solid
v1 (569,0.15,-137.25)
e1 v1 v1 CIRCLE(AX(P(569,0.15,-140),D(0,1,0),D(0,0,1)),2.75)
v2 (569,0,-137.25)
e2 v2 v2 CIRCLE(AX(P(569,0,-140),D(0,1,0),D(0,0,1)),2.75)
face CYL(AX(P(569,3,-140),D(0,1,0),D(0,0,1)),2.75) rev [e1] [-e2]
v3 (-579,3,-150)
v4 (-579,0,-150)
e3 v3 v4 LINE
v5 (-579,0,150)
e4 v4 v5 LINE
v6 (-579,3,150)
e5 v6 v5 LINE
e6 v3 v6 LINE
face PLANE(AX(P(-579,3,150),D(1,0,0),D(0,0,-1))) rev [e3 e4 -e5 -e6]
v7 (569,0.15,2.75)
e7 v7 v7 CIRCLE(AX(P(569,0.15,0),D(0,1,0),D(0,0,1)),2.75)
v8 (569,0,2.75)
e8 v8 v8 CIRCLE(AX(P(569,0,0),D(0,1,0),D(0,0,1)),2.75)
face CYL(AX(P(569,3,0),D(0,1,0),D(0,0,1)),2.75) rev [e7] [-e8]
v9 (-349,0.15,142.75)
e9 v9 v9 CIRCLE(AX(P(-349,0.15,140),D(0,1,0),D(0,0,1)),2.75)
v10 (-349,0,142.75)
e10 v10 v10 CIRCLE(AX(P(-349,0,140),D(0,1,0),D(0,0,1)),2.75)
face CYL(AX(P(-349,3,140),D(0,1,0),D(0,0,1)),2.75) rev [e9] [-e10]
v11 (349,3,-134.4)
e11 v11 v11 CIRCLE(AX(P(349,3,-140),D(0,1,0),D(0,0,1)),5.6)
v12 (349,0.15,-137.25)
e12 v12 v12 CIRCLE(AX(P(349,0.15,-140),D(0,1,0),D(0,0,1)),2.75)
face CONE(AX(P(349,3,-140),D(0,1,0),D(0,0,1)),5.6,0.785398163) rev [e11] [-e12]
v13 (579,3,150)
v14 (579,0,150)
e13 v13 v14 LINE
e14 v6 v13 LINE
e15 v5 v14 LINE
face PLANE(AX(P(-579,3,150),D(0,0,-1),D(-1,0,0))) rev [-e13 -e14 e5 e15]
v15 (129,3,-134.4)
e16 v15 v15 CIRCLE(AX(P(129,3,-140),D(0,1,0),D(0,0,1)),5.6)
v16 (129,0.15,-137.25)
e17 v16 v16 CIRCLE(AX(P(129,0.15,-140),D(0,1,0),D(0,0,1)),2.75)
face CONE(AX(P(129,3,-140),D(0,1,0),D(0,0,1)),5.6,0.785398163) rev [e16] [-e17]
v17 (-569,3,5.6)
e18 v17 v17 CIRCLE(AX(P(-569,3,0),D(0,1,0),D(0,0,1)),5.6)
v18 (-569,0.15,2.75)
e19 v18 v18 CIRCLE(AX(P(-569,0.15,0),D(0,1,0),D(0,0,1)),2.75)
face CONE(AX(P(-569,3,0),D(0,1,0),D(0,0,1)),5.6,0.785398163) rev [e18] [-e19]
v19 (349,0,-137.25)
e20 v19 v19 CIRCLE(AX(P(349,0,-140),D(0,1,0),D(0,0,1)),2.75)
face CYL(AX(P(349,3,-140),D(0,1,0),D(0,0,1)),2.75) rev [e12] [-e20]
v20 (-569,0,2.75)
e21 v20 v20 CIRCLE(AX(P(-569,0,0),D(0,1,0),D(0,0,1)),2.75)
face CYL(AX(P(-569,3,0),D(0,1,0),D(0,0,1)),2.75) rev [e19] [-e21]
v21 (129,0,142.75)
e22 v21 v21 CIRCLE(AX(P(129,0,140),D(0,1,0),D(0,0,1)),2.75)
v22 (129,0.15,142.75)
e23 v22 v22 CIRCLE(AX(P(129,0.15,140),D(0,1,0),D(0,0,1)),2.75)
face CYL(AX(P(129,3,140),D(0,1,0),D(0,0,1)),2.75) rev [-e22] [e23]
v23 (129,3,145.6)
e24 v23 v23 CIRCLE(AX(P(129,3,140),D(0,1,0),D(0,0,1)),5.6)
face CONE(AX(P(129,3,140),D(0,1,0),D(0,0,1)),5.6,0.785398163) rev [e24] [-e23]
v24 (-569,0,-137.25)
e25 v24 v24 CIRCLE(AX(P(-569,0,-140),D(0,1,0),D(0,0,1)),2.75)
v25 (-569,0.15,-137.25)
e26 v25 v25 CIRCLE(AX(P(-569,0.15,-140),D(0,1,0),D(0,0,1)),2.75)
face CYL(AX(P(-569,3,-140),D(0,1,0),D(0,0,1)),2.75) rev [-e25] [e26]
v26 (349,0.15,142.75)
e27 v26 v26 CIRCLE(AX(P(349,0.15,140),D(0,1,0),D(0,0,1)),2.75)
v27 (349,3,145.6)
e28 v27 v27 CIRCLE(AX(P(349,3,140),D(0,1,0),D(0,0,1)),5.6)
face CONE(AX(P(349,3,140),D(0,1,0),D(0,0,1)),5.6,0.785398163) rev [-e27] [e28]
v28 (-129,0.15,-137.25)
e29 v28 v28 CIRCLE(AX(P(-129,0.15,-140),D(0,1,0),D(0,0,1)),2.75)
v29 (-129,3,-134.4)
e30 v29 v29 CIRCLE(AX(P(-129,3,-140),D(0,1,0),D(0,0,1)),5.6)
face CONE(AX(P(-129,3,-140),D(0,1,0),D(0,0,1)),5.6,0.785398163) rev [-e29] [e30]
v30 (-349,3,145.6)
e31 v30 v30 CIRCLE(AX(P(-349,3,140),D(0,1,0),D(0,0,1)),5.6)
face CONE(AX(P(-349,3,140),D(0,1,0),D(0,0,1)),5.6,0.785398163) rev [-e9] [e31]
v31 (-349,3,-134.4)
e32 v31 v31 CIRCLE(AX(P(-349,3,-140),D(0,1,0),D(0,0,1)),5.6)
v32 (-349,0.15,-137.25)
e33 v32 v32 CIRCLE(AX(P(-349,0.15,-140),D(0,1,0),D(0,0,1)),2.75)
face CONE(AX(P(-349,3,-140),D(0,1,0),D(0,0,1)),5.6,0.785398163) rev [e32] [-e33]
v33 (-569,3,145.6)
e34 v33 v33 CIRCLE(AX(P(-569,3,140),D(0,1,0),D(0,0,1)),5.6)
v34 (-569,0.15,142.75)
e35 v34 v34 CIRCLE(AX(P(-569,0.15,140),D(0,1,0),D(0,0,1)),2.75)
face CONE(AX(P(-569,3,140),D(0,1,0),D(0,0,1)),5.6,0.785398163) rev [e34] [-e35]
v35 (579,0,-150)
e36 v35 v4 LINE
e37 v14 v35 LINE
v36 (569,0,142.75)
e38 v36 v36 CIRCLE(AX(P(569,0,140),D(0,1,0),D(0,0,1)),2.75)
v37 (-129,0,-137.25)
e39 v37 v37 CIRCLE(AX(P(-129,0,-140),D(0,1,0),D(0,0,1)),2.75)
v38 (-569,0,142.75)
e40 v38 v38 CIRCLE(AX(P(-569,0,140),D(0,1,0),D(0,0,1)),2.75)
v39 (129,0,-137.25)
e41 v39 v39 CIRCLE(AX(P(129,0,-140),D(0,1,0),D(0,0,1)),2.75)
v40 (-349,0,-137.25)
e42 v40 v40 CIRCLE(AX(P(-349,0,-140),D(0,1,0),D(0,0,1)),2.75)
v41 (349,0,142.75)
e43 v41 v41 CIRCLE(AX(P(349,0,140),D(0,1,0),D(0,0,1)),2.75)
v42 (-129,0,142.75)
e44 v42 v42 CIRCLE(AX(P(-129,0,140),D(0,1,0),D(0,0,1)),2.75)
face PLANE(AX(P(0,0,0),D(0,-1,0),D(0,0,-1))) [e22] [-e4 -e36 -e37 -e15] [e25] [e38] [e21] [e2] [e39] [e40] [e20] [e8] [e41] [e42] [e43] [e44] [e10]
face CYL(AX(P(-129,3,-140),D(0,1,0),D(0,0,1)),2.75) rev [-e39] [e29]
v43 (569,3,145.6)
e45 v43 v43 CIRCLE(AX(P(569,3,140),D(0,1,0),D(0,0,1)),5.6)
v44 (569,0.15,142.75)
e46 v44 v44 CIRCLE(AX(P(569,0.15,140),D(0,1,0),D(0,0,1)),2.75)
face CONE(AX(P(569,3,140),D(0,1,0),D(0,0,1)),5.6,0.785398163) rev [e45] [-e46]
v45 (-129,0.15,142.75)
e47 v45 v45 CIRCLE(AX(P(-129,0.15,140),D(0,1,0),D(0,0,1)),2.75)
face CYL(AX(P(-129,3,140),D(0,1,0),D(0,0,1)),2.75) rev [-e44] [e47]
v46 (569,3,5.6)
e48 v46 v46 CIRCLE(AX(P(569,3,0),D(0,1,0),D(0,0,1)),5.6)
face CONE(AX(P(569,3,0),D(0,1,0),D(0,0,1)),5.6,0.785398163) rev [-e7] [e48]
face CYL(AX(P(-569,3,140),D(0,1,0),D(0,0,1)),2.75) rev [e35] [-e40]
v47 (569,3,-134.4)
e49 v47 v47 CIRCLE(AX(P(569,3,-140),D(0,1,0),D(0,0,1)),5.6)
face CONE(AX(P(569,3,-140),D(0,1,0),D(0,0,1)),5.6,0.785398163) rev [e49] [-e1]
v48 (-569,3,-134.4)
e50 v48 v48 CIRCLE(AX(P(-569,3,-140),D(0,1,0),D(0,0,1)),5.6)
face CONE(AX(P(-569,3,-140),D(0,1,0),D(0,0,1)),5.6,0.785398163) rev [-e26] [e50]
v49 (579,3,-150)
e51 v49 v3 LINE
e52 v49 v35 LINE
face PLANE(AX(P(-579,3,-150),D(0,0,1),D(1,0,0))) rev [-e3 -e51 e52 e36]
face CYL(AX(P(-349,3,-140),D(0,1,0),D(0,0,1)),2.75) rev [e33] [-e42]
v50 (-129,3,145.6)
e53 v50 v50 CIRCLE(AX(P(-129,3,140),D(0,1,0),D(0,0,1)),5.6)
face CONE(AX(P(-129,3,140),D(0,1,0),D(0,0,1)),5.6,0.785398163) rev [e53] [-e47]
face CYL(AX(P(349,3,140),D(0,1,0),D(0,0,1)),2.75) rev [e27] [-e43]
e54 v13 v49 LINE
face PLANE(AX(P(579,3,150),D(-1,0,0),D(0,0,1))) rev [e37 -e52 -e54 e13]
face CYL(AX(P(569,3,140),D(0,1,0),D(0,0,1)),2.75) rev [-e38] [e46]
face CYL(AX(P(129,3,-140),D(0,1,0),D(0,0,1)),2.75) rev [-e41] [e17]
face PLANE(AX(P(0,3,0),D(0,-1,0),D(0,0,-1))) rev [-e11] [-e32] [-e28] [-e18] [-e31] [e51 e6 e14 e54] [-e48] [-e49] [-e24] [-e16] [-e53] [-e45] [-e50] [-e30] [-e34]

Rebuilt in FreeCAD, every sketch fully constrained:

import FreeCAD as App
import Part
import Sketcher

V = App.Vector
Q = App.Units.Quantity


def add_polygon(sketch, points):
    """Adds a closed chain of lines whose ends are joined by coincident constraints."""
    first, n = sketch.GeometryCount, len(points)
    for a, b in zip(points, points[1:] + points[:1]):
        sketch.addGeometry(Part.LineSegment(App.Vector(*a, 0), App.Vector(*b, 0)), False)
    for i in range(n):
        sketch.addConstraint(Sketcher.Constraint("Coincident", first + i, 2, first + (i + 1) % n, 1))

doc = App.newDocument("Part")
body = doc.addObject("PartDesign::Body", "Body")

sketch1 = body.newObject("Sketcher::SketchObject", "Sketch")
sketch1.AttachmentSupport = (doc.getObject("XZ_Plane"), [""])
sketch1.MapMode = "FlatFace"
add_polygon(sketch1, [(-579, -150), (-579, 150), (579, 150), (579, -150)])
sketch1.addConstraint(Sketcher.Constraint("Vertical", 0))
sketch1.addConstraint(Sketcher.Constraint("Horizontal", 1))
sketch1.addConstraint(Sketcher.Constraint("Vertical", 2))
sketch1.addConstraint(Sketcher.Constraint("Horizontal", 3))
sketch1.addConstraint(Sketcher.Constraint("Symmetric", 0, 2, 2, 2, -1, 1))
sketch1.addConstraint(Sketcher.Constraint("DistanceX", 1, 1, 1, 2, Q("1158 mm")))
sketch1.addConstraint(Sketcher.Constraint("DistanceY", 0, 1, 0, 2, Q("300 mm")))
pad1 = body.newObject("PartDesign::Pad", "Pad")
pad1.Profile = sketch1
pad1.Length = 3
pad1.Reversed = True

sketch2 = body.newObject("Sketcher::SketchObject", "Sketch001")
sketch2.AttachmentSupport = (doc.getObject("YZ_Plane"), [""])
sketch2.MapMode = "FlatFace"
sketch2.AttachmentOffset = App.Placement(V(0, 0, -569), App.Rotation())
add_polygon(sketch2, [(-1.65, 140), (3, 140), (3, 145.6), (0.15, 142.75), (0, 142.75)])
sketch2.addGeometry(Part.LineSegment(V(3, 140, 0), V(-1.65, 140, 0)), True)
sketch2.addConstraint(Sketcher.Constraint("Horizontal", 0))
sketch2.addConstraint(Sketcher.Constraint("Vertical", 1))
sketch2.addConstraint(Sketcher.Constraint("Horizontal", 3))
sketch2.addConstraint(Sketcher.Constraint("Horizontal", 5))
sketch2.addConstraint(Sketcher.Constraint("Coincident", 5, 1, 0, 2))
sketch2.addConstraint(Sketcher.Constraint("PointOnObject", 3, 2, -2))
sketch2.addConstraint(Sketcher.Constraint("Equal", 0, 5))
sketch2.addConstraint(Sketcher.Constraint("Angle", 2, Q("-135 deg")))
sketch2.addConstraint(Sketcher.Constraint("Angle", 4, Q("-121 deg")))
sketch2.addConstraint(Sketcher.Constraint("DistanceY", 1, 1, 1, 2, Q("5.6 mm")))
sketch2.addConstraint(Sketcher.Constraint("DistanceX", -1, 1, 0, 2, Q("3 mm")))
sketch2.addConstraint(Sketcher.Constraint("DistanceY", -1, 1, 0, 2, Q("140 mm")))
sketch2.addConstraint(Sketcher.Constraint("DistanceX", 3, 2, 3, 1, Q("0.15 mm")))
groove = body.newObject("PartDesign::Groove", "Groove")
groove.Profile = sketch2
groove.ReferenceAxis = (sketch2, ["Axis0"])
groove.Angle = 360
doc.recompute()

linearpattern = body.newObject("PartDesign::LinearPattern", "LinearPattern")
linearpattern.Originals = [groove]
linearpattern.Direction = (doc.getObject("Z_Axis"), [""])
linearpattern.Mode = "offset"
linearpattern.Offset = 140
linearpattern.Occurrences = 2
linearpattern.Reversed = True
body.Tip = linearpattern
doc.recompute()

linearpattern2 = body.newObject("PartDesign::LinearPattern", "LinearPattern001")
linearpattern2.Originals = [groove]
linearpattern2.Direction = (doc.getObject("Z_Axis"), [""])
linearpattern2.Mode = "offset"
linearpattern2.Offset = 280
linearpattern2.Occurrences = 2
linearpattern2.Reversed = True
body.Tip = linearpattern2
doc.recompute()

datumline = body.newObject("PartDesign::Line", "DatumLine")
datumline.Placement = App.Placement(V(0, 0, 0), App.Rotation(V(0, 0, 1), V(0.617821552, 0, -0.786318339)))
linearpattern3 = body.newObject("PartDesign::LinearPattern", "LinearPattern002")
linearpattern3.Originals = [groove]
linearpattern3.Direction = (datumline, [""])
linearpattern3.Mode = "offset"
linearpattern3.Offset = 356.089876
linearpattern3.Occurrences = 2
body.Tip = linearpattern3
doc.recompute()

linearpattern4 = body.newObject("PartDesign::LinearPattern", "LinearPattern003")
linearpattern4.Originals = [groove]
linearpattern4.Direction = (doc.getObject("X_Axis"), [""])
linearpattern4.Mode = "offset"
linearpattern4.Offset = 220
linearpattern4.Occurrences = 2
body.Tip = linearpattern4
doc.recompute()

linearpattern5 = body.newObject("PartDesign::LinearPattern", "LinearPattern004")
linearpattern5.Originals = [groove]
linearpattern5.Direction = (doc.getObject("X_Axis"), [""])
linearpattern5.Mode = "offset"
linearpattern5.Offset = 440
linearpattern5.Occurrences = 2
body.Tip = linearpattern5
doc.recompute()

datumline2 = body.newObject("PartDesign::Line", "DatumLine001")
datumline2.Placement = App.Placement(V(0, 0, 0), App.Rotation(V(0, 0, 1), V(0.843661488, 0, -0.536875492)))
linearpattern6 = body.newObject("PartDesign::LinearPattern", "LinearPattern005")
linearpattern6.Originals = [groove]
linearpattern6.Direction = (datumline2, [""])
linearpattern6.Mode = "offset"
linearpattern6.Offset = 521.536192
linearpattern6.Occurrences = 2
body.Tip = linearpattern6
doc.recompute()

datumline3 = body.newObject("PartDesign::Line", "DatumLine002")
datumline3.Placement = App.Placement(V(0, 0, 0), App.Rotation(V(0, 0, 1), V(0.928109433, 0, -0.372307509)))
linearpattern7 = body.newObject("PartDesign::LinearPattern", "LinearPattern006")
linearpattern7.Originals = [groove]
linearpattern7.Direction = (datumline3, [""])
linearpattern7.Mode = "offset"
linearpattern7.Offset = 752.066486
linearpattern7.Occurrences = 2
body.Tip = linearpattern7
doc.recompute()

linearpattern8 = body.newObject("PartDesign::LinearPattern", "LinearPattern007")
linearpattern8.Originals = [groove]
linearpattern8.Direction = (doc.getObject("X_Axis"), [""])
linearpattern8.Mode = "offset"
linearpattern8.Offset = 698
linearpattern8.Occurrences = 2
body.Tip = linearpattern8
doc.recompute()

linearpattern9 = body.newObject("PartDesign::LinearPattern", "LinearPattern008")
linearpattern9.Originals = [groove]
linearpattern9.Direction = (doc.getObject("X_Axis"), [""])
linearpattern9.Mode = "offset"
linearpattern9.Offset = 918
linearpattern9.Occurrences = 2
body.Tip = linearpattern9
doc.recompute()

datumline4 = body.newObject("PartDesign::Line", "DatumLine003")
datumline4.Placement = App.Placement(V(0, 0, 0), App.Rotation(V(0, 0, 1), V(0.956497044, 0, -0.291742018)))
linearpattern10 = body.newObject("PartDesign::LinearPattern", "LinearPattern009")
linearpattern10.Originals = [groove]
linearpattern10.Direction = (datumline4, [""])
linearpattern10.Mode = "offset"
linearpattern10.Offset = 959.752051
linearpattern10.Occurrences = 2
body.Tip = linearpattern10
doc.recompute()

datumline5 = body.newObject("PartDesign::Line", "DatumLine004")
datumline5.Placement = App.Placement(V(0, 0, 0), App.Rotation(V(0, 0, 1), V(0.971039248, 0, -0.238920026)))
linearpattern11 = body.newObject("PartDesign::LinearPattern", "LinearPattern010")
linearpattern11.Originals = [groove]
linearpattern11.Direction = (datumline5, [""])
linearpattern11.Mode = "offset"
linearpattern11.Offset = 1171.940272
linearpattern11.Occurrences = 2
body.Tip = linearpattern11
doc.recompute()

linearpattern12 = body.newObject("PartDesign::LinearPattern", "LinearPattern011")
linearpattern12.Originals = [groove]
linearpattern12.Direction = (doc.getObject("X_Axis"), [""])
linearpattern12.Mode = "offset"
linearpattern12.Offset = 1138
linearpattern12.Occurrences = 2
body.Tip = linearpattern12
doc.recompute()

datumline6 = body.newObject("PartDesign::Line", "DatumLine005")
datumline6.Placement = App.Placement(V(0, 0, 0), App.Rotation(V(0, 0, 1), V(0.992517517, 0, -0.122102331)))
linearpattern13 = body.newObject("PartDesign::LinearPattern", "LinearPattern012")
linearpattern13.Originals = [groove]
linearpattern13.Direction = (datumline6, [""])
linearpattern13.Mode = "offset"
linearpattern13.Offset = 1146.57926
linearpattern13.Occurrences = 2
body.Tip = linearpattern13

doc.recompute()
